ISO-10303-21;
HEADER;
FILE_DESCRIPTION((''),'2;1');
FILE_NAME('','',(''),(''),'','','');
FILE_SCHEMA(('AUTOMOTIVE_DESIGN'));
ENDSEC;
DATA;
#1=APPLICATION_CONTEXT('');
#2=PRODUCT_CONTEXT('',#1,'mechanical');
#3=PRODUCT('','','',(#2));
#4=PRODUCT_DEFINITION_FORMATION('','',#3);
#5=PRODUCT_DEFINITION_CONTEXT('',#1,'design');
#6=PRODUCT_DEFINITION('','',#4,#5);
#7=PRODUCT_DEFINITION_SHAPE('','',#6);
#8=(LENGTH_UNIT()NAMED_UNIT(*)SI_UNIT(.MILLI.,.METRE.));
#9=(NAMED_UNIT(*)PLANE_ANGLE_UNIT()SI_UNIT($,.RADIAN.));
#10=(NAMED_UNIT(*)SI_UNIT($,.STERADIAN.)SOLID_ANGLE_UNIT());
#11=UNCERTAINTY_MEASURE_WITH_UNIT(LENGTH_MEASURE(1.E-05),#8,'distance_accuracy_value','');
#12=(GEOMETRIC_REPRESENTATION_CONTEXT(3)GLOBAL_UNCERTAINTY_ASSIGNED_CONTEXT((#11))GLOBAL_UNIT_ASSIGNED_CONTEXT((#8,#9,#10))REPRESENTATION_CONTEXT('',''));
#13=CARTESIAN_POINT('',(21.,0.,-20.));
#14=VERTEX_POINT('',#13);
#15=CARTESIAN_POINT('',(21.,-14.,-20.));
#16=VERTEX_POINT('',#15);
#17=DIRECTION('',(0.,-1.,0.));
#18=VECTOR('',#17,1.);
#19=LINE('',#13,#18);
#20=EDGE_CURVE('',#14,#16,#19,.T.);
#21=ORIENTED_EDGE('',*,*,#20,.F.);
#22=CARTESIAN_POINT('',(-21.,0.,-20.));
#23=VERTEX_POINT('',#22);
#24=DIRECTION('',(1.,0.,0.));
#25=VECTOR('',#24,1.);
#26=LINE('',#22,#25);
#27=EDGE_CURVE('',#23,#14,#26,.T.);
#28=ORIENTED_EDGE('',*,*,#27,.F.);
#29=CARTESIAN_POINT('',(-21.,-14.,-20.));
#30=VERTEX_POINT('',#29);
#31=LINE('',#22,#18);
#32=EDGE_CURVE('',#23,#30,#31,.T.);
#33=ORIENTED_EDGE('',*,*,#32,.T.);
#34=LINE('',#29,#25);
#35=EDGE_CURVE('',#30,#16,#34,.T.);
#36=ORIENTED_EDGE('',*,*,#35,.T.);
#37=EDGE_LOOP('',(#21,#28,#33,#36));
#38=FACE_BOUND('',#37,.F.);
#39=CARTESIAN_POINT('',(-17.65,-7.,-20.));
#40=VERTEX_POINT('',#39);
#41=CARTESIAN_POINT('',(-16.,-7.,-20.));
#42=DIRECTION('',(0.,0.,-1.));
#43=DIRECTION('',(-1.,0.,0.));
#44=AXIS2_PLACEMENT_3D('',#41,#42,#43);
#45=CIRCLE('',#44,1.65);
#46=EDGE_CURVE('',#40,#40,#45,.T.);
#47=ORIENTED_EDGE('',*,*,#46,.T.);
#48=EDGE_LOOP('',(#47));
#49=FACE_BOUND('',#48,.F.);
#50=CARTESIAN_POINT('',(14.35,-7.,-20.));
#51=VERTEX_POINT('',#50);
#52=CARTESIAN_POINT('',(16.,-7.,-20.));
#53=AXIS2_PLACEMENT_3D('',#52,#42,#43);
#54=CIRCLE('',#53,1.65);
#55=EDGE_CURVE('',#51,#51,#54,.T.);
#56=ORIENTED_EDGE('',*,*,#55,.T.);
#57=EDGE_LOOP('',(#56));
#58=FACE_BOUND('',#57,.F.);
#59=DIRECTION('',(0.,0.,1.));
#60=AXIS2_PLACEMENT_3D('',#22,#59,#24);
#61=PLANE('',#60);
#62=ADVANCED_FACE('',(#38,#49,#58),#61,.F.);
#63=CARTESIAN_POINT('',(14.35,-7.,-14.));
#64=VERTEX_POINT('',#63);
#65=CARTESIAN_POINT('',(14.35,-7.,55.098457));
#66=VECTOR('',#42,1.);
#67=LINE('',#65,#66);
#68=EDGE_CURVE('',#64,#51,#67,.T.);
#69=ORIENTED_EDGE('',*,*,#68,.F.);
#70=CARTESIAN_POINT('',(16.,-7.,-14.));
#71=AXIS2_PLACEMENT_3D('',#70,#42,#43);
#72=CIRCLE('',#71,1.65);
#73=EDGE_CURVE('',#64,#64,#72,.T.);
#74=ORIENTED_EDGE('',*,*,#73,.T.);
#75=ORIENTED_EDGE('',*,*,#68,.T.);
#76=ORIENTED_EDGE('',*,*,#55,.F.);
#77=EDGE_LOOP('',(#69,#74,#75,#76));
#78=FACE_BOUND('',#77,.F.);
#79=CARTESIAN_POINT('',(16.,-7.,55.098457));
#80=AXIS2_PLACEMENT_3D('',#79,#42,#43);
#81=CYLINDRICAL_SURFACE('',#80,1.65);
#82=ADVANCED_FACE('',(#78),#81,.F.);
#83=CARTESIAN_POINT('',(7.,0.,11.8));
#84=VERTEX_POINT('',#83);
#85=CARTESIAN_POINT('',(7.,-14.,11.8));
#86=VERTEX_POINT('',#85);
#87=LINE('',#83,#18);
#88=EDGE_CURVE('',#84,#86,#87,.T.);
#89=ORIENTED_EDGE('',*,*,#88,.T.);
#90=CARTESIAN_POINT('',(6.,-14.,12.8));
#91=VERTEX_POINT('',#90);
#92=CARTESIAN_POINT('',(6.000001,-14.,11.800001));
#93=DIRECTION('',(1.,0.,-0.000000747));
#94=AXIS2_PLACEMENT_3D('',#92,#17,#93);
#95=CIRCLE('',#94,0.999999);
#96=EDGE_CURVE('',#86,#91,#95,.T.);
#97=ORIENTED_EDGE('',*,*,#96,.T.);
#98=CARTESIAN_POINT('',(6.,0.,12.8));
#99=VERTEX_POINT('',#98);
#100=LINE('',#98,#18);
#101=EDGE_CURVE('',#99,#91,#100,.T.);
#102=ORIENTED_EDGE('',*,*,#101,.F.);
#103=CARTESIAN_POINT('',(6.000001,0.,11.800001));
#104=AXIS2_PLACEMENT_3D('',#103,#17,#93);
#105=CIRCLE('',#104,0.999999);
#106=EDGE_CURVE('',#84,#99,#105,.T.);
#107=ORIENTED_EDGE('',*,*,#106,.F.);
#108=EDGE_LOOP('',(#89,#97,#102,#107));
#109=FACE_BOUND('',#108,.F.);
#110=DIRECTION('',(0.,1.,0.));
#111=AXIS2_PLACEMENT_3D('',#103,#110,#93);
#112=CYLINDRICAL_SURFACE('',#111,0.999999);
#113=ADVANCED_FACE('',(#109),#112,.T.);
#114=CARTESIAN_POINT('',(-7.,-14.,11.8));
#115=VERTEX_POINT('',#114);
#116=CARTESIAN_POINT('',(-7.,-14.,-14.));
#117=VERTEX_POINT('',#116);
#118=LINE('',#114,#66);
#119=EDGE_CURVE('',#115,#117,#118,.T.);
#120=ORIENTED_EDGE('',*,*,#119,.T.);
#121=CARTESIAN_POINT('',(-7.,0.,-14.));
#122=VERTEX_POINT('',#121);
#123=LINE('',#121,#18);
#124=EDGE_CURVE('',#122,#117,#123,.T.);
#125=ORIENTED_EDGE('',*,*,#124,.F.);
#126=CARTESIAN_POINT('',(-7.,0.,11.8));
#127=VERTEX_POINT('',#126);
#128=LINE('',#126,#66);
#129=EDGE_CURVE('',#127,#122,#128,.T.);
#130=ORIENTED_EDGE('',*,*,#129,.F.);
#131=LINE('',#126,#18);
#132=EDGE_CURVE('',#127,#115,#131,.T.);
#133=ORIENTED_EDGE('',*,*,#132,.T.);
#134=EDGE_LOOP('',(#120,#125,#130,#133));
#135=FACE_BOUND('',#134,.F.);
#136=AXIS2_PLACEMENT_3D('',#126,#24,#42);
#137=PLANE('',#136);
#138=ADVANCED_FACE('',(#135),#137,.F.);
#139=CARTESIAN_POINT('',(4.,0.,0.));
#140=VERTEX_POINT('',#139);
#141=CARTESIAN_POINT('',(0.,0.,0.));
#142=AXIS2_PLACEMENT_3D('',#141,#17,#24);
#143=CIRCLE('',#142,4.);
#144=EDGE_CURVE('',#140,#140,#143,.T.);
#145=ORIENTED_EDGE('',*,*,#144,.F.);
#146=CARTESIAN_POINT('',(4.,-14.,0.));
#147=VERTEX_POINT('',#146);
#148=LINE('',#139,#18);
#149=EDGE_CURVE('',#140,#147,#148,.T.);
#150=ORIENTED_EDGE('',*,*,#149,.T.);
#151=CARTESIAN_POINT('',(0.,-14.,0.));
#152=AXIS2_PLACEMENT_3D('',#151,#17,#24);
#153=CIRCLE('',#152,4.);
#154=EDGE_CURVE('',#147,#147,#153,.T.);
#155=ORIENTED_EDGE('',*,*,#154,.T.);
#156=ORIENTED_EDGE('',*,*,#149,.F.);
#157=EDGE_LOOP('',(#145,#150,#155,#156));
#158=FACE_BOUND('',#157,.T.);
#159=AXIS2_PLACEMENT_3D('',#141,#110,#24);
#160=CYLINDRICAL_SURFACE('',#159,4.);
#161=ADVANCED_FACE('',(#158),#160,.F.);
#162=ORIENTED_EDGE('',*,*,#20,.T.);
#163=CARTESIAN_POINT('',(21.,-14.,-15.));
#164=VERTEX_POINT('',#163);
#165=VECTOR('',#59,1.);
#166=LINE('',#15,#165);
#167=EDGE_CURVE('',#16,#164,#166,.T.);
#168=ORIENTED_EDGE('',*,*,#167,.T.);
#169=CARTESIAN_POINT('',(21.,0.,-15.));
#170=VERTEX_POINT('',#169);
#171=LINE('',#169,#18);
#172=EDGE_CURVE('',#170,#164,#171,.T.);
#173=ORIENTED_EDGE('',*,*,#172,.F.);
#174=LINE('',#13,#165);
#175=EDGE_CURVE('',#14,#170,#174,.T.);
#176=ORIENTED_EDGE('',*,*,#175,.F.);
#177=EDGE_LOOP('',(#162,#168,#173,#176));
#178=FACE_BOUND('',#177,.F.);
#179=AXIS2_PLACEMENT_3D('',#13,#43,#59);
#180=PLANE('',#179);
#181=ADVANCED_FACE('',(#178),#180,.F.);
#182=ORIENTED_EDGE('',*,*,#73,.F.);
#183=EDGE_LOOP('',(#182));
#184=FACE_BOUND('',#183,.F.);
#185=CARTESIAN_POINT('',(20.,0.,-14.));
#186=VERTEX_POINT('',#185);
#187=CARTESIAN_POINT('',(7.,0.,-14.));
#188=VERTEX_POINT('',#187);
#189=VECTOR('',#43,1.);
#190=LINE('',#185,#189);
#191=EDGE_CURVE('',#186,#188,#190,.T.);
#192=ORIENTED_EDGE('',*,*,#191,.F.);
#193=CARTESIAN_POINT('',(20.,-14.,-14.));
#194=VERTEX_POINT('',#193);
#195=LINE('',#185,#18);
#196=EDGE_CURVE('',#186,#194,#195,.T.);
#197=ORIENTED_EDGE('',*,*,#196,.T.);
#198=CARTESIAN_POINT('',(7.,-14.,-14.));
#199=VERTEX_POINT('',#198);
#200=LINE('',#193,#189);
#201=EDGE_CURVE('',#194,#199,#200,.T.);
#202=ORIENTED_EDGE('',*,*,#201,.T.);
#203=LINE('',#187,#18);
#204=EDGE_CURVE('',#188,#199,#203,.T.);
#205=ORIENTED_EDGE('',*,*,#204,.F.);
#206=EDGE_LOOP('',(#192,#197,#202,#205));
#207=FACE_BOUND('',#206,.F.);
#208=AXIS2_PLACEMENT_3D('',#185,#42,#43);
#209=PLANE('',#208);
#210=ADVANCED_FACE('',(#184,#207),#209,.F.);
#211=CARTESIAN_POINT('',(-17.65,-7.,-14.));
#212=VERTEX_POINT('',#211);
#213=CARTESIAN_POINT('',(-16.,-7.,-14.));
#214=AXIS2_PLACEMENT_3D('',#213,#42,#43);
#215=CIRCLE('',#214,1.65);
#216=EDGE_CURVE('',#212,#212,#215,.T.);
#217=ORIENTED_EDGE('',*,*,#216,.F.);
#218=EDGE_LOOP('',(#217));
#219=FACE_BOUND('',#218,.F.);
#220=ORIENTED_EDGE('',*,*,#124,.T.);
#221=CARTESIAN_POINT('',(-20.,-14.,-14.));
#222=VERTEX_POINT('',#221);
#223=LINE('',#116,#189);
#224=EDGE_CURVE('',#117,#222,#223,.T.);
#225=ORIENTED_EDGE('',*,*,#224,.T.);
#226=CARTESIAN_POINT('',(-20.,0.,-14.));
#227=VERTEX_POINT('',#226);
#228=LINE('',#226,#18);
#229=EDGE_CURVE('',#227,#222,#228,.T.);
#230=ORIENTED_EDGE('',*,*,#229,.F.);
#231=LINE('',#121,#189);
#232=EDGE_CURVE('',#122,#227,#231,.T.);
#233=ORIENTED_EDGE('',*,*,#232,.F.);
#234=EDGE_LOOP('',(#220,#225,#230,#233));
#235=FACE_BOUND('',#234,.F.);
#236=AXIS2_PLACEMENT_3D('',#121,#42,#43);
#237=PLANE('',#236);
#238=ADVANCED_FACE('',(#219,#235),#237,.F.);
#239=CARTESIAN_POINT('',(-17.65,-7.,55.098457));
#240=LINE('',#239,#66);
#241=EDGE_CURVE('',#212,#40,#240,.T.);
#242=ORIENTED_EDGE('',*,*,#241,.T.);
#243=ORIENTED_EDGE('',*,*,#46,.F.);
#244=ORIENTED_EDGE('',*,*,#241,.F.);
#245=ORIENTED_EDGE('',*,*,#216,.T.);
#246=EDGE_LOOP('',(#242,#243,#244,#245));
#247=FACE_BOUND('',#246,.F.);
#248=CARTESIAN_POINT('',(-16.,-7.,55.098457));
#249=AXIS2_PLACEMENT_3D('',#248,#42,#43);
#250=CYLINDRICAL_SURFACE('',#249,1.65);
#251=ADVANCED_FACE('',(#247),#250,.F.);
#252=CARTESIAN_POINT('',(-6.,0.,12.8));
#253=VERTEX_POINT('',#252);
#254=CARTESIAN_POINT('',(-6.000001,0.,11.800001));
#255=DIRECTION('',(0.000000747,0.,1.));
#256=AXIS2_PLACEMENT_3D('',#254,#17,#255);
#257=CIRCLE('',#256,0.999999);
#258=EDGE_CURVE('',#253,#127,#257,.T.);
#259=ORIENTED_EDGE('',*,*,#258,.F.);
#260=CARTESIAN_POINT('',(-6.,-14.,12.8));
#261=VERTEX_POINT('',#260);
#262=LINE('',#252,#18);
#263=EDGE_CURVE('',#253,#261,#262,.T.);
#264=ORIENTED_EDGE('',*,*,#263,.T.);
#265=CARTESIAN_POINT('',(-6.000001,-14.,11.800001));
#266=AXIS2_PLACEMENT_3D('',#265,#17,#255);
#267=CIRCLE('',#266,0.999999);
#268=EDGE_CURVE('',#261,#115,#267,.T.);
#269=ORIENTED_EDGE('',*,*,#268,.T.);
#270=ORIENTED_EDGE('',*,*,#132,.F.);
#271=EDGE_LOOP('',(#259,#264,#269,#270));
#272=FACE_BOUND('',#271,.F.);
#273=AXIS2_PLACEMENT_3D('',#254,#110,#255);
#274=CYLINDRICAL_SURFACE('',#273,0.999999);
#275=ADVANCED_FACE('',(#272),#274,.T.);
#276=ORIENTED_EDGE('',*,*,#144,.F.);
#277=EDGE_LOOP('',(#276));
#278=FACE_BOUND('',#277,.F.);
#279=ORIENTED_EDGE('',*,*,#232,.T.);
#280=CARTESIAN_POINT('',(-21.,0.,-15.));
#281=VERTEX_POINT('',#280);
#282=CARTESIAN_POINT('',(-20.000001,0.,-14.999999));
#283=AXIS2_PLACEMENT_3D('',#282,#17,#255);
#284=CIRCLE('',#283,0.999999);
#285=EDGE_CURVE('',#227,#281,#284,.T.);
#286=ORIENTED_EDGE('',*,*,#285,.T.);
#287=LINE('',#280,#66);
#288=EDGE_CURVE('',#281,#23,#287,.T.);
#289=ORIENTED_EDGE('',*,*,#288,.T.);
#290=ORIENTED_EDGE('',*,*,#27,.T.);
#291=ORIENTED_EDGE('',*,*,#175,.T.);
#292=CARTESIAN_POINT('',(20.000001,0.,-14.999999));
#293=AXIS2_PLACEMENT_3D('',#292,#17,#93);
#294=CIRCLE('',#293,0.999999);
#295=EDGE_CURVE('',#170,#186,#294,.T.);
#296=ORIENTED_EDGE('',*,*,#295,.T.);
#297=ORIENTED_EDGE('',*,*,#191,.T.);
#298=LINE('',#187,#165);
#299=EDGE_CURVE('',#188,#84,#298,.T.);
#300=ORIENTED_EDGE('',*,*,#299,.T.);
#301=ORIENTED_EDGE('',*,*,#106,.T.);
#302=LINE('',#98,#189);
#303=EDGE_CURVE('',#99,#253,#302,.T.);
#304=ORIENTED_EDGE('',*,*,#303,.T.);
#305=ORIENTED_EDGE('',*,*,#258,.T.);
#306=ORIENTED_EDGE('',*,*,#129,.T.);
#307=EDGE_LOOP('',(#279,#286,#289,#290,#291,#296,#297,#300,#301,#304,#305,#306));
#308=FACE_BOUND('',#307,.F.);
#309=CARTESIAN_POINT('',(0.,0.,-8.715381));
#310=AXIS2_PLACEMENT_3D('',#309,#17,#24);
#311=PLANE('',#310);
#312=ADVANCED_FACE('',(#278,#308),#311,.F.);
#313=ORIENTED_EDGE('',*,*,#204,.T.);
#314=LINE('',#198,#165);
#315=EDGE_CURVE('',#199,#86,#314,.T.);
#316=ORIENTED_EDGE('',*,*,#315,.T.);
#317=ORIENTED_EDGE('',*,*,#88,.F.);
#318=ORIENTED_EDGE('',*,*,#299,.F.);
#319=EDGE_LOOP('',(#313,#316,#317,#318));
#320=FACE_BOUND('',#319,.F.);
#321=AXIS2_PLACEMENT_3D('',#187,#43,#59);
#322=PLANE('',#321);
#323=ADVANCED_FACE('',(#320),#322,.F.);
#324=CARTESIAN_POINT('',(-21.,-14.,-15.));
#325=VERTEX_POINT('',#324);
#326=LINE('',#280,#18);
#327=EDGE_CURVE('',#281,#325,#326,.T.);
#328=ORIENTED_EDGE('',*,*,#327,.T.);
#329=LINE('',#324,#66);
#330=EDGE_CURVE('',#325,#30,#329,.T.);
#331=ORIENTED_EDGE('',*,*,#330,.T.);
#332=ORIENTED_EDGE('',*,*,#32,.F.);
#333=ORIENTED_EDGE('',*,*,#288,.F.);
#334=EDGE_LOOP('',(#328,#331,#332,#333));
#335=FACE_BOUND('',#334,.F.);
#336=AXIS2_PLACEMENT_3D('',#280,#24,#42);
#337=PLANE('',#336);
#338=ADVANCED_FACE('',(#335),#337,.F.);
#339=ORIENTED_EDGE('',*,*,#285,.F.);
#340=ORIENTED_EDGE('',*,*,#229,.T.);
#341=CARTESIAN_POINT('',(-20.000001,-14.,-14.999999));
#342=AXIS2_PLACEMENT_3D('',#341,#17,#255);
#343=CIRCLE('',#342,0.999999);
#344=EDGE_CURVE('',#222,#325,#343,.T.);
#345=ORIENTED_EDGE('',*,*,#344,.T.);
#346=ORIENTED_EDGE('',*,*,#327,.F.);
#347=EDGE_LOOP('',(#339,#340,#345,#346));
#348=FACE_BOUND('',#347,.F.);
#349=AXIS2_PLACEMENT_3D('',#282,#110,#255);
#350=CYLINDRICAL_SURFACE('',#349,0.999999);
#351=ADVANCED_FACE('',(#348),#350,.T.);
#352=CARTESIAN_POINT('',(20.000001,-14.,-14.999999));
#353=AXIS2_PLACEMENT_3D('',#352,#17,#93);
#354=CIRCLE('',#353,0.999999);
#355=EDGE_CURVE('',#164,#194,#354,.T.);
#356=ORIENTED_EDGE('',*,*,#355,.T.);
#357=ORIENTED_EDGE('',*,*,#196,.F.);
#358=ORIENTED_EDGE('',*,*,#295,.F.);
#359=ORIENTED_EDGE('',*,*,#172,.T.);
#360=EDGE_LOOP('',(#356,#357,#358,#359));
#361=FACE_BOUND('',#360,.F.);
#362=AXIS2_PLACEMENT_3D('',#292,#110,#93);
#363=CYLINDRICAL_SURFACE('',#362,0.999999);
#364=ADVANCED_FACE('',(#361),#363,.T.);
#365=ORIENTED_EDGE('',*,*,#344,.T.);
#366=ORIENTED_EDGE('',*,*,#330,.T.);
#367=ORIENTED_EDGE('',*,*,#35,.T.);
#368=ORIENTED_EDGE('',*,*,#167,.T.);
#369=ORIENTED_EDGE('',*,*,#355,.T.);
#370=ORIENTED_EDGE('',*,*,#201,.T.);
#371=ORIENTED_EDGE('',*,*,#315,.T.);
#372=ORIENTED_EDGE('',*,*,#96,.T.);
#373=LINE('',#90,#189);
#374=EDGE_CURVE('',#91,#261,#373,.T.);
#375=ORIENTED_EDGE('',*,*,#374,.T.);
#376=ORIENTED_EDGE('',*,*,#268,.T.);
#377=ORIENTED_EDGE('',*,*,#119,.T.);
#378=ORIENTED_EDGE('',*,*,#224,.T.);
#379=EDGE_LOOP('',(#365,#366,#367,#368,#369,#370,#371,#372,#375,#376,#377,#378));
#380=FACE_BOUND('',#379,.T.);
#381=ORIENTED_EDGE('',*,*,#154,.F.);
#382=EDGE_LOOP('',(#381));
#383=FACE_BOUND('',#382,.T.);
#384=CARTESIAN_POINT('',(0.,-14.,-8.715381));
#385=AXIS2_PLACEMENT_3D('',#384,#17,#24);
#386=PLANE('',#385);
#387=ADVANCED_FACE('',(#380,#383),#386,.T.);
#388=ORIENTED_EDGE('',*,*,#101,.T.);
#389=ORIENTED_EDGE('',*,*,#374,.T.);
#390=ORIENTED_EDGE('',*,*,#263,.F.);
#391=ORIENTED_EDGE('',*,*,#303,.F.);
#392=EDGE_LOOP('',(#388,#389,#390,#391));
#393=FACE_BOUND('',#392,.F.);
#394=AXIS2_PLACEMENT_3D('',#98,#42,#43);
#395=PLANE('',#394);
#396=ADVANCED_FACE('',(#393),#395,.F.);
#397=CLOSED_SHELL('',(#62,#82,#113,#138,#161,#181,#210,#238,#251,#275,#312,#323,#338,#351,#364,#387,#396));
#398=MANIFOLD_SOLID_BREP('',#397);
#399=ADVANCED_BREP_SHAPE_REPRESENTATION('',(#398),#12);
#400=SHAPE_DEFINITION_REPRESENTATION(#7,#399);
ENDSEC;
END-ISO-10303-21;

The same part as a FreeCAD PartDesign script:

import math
import FreeCAD as App
import Part
import Sketcher

doc = App.newDocument("Part")
params = doc.addObject("Spreadsheet::Sheet", "Params")
for row, (alias, value) in enumerate([
    ("sketch1_diameter", "8 mm"),
    ("sketch1_radius", "0.999999 mm"),
    ("sketch1_width", "13 mm"),
    ("sketch1_width2", "12 mm"),
    ("sketch1_height", "5 mm"),
    ("pad1_length", "14 mm"),
    ("sketch2_diameter", "3.3 mm"),
    ("hole_diameter", "3.3 mm"),
], start=1):
    params.set(f"A{row}", alias)
    params.set(f"B{row}", "=" + value)
    params.setAlias(f"B{row}", alias)

body = doc.addObject("PartDesign::Body", "Body")

# Sketch on XZ plane
sketch1 = body.newObject("Sketcher::SketchObject", "Sketch")
sketch1.AttachmentSupport = (doc.getObject("XZ_Plane"), [""])
sketch1.MapMode = "FlatFace"
sketch1.addGeometry(Part.LineSegment(App.Vector(20, -14, 0), App.Vector(7, -14, 0)), False)
sketch1.addGeometry(Part.LineSegment(App.Vector(7, -14, 0), App.Vector(7, 11.8, 0)), False)
sketch1.addGeometry(Part.ArcOfCircle(Part.Circle(App.Vector(6.000001, 11.800001, 0), App.Vector(0, 0, 1), 0.999999), math.radians(-0.000043), math.radians(90.000043)), False)
sketch1.addGeometry(Part.LineSegment(App.Vector(6, 12.8, 0), App.Vector(-6, 12.8, 0)), False)
sketch1.addGeometry(Part.ArcOfCircle(Part.Circle(App.Vector(-6.000001, 11.800001, 0), App.Vector(0, 0, 1), 0.999999), math.radians(89.999957), math.radians(180.000043)), False)
sketch1.addGeometry(Part.LineSegment(App.Vector(-7, 11.8, 0), App.Vector(-7, -14, 0)), False)
sketch1.addGeometry(Part.LineSegment(App.Vector(-7, -14, 0), App.Vector(-20, -14, 0)), False)
sketch1.addGeometry(Part.ArcOfCircle(Part.Circle(App.Vector(-20.000001, -14.999999, 0), App.Vector(0, 0, 1), 0.999999), math.radians(89.999957), math.radians(180.000043)), False)
sketch1.addGeometry(Part.LineSegment(App.Vector(-21, -15, 0), App.Vector(-21, -20, 0)), False)
sketch1.addGeometry(Part.LineSegment(App.Vector(-21, -20, 0), App.Vector(21, -20, 0)), False)
sketch1.addGeometry(Part.LineSegment(App.Vector(21, -20, 0), App.Vector(21, -15, 0)), False)
sketch1.addGeometry(Part.ArcOfCircle(Part.Circle(App.Vector(20.000001, -14.999999, 0), App.Vector(0, 0, 1), 0.999999), math.radians(-0.000043), math.radians(90.000043)), False)
sketch1.addGeometry(Part.Circle(App.Vector(0, 0, 0), App.Vector(0, 0, 1), 4), False)
sketch1.addConstraint(Sketcher.Constraint("Coincident", 0, 2, 1, 1))
sketch1.addConstraint(Sketcher.Constraint("Tangent", 1, 2, 2, 1))
sketch1.addConstraint(Sketcher.Constraint("Tangent", 2, 2, 3, 1))
sketch1.addConstraint(Sketcher.Constraint("Tangent", 3, 2, 4, 1))
sketch1.addConstraint(Sketcher.Constraint("Tangent", 4, 2, 5, 1))
sketch1.addConstraint(Sketcher.Constraint("Coincident", 5, 2, 6, 1))
sketch1.addConstraint(Sketcher.Constraint("Tangent", 6, 2, 7, 1))
sketch1.addConstraint(Sketcher.Constraint("Tangent", 7, 2, 8, 1))
sketch1.addConstraint(Sketcher.Constraint("Coincident", 8, 2, 9, 1))
sketch1.addConstraint(Sketcher.Constraint("Coincident", 9, 2, 10, 1))
sketch1.addConstraint(Sketcher.Constraint("Tangent", 10, 2, 11, 1))
sketch1.addConstraint(Sketcher.Constraint("Tangent", 11, 2, 0, 1))
sketch1.addConstraint(Sketcher.Constraint("Horizontal", 0))
sketch1.addConstraint(Sketcher.Constraint("Vertical", 1))
sketch1.addConstraint(Sketcher.Constraint("Horizontal", 3))
sketch1.addConstraint(Sketcher.Constraint("Vertical", 5))
sketch1.addConstraint(Sketcher.Constraint("Horizontal", 6))
sketch1.addConstraint(Sketcher.Constraint("Vertical", 8))
sketch1.addConstraint(Sketcher.Constraint("Horizontal", 9))
sketch1.addConstraint(Sketcher.Constraint("Vertical", 10))
sketch1.addConstraint(Sketcher.Constraint("Coincident", 12, 3, -1, 1))
sketch1.addConstraint(Sketcher.Constraint("Equal", 2, 4))
sketch1.addConstraint(Sketcher.Constraint("Equal", 4, 7))
sketch1.addConstraint(Sketcher.Constraint("Equal", 7, 11))
sketch1.addConstraint(Sketcher.Constraint("Symmetric", 7, 3, 11, 3, -2))
sketch1.addConstraint(Sketcher.Constraint("Equal", 0, 6))
sketch1.addConstraint(Sketcher.Constraint("Diameter", 12, 8.0))
sketch1.addConstraint(Sketcher.Constraint("Radius", 2, 0.999999))
sketch1.addConstraint(Sketcher.Constraint("DistanceX", 0, 2, 0, 1, 13.0))
sketch1.addConstraint(Sketcher.Constraint("DistanceX", 3, 2, 3, 1, 12.0))
sketch1.addConstraint(Sketcher.Constraint("DistanceY", 8, 2, 8, 1, 5.0))
sketch1.addConstraint(Sketcher.Constraint("DistanceY", 1, 1, 1, 2, 25.8))
sketch1.addConstraint(Sketcher.Constraint("DistanceY", 7, 3, -1, 1, 14.999999))
sketch1.setExpression("Constraints[26]", "Params.sketch1_diameter")
sketch1.setExpression("Constraints[27]", "Params.sketch1_radius")
sketch1.setExpression("Constraints[28]", "Params.sketch1_width")
sketch1.setExpression("Constraints[29]", "Params.sketch1_width2")
sketch1.setExpression("Constraints[30]", "Params.sketch1_height")
pad1 = body.newObject("PartDesign::Pad", "Pad")
pad1.Profile = sketch1
pad1.setExpression("Length", "Params.pad1_length")

# Sketch on XY plane
sketch2 = body.newObject("Sketcher::SketchObject", "Sketch001")
sketch2.AttachmentSupport = (doc.getObject("XY_Plane"), [""])
sketch2.MapMode = "FlatFace"
sketch2.addGeometry(Part.Circle(App.Vector(-16, -7, 0), App.Vector(0, 0, 1), 1.65), False)
sketch2.addGeometry(Part.Circle(App.Vector(16, -7, 0), App.Vector(0, 0, 1), 1.65), False)
sketch2.addConstraint(Sketcher.Constraint("Equal", 0, 1))
sketch2.addConstraint(Sketcher.Constraint("Symmetric", 0, 3, 1, 3, -2))
sketch2.addConstraint(Sketcher.Constraint("Diameter", 0, 3.3))
sketch2.addConstraint(Sketcher.Constraint("DistanceX", 0, 3, -1, 1, 16.0))
sketch2.addConstraint(Sketcher.Constraint("DistanceY", 0, 3, -1, 1, 7.0))
sketch2.setExpression("Constraints[2]", "Params.sketch2_diameter")
doc.recompute()
hole = body.newObject("PartDesign::Hole", "Hole")
hole.Profile = sketch2
hole.ThreadType = "None"
hole.setExpression("Diameter", "Params.hole_diameter")
hole.DepthType = "ThroughAll"

doc.recompute()
